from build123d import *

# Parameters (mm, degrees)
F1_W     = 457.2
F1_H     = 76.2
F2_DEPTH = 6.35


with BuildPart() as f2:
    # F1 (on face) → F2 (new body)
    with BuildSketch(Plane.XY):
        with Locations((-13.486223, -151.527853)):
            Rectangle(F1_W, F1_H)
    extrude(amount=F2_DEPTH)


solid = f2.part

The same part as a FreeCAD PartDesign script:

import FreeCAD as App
import Part
import Sketcher

V = App.Vector
Q = App.Units.Quantity

doc = App.newDocument("Part")
body = doc.addObject("PartDesign::Body", "Body")

sketch1 = body.newObject("Sketcher::SketchObject", "Sketch")
sketch1.AttachmentSupport = (doc.getObject("XY_Plane"), [""])
sketch1.MapMode = "FlatFace"
sketch1.addGeometry([
    Part.LineSegment(V(-242, -113, 0), V(-242, -190, 0)),
    Part.LineSegment(V(-242, -190, 0), V(215, -190, 0)),
    Part.LineSegment(V(215, -190, 0), V(215, -113, 0)),
    Part.LineSegment(V(215, -113, 0), V(-242, -113, 0)),
], False)
sketch1.addConstraint([
    Sketcher.Constraint("Coincident", 0, 2, 1, 1),
    Sketcher.Constraint("Coincident", 1, 2, 2, 1),
    Sketcher.Constraint("Coincident", 2, 2, 3, 1),
    Sketcher.Constraint("Coincident", 3, 2, 0, 1),
    Sketcher.Constraint("Vertical", 0),
    Sketcher.Constraint("Horizontal", 1),
    Sketcher.Constraint("Vertical", 2),
    Sketcher.Constraint("Horizontal", 3),
    Sketcher.Constraint("DistanceX", 1, 1, 1, 2, Q("18 in")),
    Sketcher.Constraint("DistanceY", 0, 2, 0, 1, Q("3 in")),
    Sketcher.Constraint("DistanceX", 0, 2, -1, 1, 242.086223),
    Sketcher.Constraint("DistanceY", 0, 2, -1, 1, 189.627853),
])
pad1 = body.newObject("PartDesign::Pad", "Pad")
pad1.Profile = sketch1
pad1.Length = Q("0.25 in")

doc.recompute()
